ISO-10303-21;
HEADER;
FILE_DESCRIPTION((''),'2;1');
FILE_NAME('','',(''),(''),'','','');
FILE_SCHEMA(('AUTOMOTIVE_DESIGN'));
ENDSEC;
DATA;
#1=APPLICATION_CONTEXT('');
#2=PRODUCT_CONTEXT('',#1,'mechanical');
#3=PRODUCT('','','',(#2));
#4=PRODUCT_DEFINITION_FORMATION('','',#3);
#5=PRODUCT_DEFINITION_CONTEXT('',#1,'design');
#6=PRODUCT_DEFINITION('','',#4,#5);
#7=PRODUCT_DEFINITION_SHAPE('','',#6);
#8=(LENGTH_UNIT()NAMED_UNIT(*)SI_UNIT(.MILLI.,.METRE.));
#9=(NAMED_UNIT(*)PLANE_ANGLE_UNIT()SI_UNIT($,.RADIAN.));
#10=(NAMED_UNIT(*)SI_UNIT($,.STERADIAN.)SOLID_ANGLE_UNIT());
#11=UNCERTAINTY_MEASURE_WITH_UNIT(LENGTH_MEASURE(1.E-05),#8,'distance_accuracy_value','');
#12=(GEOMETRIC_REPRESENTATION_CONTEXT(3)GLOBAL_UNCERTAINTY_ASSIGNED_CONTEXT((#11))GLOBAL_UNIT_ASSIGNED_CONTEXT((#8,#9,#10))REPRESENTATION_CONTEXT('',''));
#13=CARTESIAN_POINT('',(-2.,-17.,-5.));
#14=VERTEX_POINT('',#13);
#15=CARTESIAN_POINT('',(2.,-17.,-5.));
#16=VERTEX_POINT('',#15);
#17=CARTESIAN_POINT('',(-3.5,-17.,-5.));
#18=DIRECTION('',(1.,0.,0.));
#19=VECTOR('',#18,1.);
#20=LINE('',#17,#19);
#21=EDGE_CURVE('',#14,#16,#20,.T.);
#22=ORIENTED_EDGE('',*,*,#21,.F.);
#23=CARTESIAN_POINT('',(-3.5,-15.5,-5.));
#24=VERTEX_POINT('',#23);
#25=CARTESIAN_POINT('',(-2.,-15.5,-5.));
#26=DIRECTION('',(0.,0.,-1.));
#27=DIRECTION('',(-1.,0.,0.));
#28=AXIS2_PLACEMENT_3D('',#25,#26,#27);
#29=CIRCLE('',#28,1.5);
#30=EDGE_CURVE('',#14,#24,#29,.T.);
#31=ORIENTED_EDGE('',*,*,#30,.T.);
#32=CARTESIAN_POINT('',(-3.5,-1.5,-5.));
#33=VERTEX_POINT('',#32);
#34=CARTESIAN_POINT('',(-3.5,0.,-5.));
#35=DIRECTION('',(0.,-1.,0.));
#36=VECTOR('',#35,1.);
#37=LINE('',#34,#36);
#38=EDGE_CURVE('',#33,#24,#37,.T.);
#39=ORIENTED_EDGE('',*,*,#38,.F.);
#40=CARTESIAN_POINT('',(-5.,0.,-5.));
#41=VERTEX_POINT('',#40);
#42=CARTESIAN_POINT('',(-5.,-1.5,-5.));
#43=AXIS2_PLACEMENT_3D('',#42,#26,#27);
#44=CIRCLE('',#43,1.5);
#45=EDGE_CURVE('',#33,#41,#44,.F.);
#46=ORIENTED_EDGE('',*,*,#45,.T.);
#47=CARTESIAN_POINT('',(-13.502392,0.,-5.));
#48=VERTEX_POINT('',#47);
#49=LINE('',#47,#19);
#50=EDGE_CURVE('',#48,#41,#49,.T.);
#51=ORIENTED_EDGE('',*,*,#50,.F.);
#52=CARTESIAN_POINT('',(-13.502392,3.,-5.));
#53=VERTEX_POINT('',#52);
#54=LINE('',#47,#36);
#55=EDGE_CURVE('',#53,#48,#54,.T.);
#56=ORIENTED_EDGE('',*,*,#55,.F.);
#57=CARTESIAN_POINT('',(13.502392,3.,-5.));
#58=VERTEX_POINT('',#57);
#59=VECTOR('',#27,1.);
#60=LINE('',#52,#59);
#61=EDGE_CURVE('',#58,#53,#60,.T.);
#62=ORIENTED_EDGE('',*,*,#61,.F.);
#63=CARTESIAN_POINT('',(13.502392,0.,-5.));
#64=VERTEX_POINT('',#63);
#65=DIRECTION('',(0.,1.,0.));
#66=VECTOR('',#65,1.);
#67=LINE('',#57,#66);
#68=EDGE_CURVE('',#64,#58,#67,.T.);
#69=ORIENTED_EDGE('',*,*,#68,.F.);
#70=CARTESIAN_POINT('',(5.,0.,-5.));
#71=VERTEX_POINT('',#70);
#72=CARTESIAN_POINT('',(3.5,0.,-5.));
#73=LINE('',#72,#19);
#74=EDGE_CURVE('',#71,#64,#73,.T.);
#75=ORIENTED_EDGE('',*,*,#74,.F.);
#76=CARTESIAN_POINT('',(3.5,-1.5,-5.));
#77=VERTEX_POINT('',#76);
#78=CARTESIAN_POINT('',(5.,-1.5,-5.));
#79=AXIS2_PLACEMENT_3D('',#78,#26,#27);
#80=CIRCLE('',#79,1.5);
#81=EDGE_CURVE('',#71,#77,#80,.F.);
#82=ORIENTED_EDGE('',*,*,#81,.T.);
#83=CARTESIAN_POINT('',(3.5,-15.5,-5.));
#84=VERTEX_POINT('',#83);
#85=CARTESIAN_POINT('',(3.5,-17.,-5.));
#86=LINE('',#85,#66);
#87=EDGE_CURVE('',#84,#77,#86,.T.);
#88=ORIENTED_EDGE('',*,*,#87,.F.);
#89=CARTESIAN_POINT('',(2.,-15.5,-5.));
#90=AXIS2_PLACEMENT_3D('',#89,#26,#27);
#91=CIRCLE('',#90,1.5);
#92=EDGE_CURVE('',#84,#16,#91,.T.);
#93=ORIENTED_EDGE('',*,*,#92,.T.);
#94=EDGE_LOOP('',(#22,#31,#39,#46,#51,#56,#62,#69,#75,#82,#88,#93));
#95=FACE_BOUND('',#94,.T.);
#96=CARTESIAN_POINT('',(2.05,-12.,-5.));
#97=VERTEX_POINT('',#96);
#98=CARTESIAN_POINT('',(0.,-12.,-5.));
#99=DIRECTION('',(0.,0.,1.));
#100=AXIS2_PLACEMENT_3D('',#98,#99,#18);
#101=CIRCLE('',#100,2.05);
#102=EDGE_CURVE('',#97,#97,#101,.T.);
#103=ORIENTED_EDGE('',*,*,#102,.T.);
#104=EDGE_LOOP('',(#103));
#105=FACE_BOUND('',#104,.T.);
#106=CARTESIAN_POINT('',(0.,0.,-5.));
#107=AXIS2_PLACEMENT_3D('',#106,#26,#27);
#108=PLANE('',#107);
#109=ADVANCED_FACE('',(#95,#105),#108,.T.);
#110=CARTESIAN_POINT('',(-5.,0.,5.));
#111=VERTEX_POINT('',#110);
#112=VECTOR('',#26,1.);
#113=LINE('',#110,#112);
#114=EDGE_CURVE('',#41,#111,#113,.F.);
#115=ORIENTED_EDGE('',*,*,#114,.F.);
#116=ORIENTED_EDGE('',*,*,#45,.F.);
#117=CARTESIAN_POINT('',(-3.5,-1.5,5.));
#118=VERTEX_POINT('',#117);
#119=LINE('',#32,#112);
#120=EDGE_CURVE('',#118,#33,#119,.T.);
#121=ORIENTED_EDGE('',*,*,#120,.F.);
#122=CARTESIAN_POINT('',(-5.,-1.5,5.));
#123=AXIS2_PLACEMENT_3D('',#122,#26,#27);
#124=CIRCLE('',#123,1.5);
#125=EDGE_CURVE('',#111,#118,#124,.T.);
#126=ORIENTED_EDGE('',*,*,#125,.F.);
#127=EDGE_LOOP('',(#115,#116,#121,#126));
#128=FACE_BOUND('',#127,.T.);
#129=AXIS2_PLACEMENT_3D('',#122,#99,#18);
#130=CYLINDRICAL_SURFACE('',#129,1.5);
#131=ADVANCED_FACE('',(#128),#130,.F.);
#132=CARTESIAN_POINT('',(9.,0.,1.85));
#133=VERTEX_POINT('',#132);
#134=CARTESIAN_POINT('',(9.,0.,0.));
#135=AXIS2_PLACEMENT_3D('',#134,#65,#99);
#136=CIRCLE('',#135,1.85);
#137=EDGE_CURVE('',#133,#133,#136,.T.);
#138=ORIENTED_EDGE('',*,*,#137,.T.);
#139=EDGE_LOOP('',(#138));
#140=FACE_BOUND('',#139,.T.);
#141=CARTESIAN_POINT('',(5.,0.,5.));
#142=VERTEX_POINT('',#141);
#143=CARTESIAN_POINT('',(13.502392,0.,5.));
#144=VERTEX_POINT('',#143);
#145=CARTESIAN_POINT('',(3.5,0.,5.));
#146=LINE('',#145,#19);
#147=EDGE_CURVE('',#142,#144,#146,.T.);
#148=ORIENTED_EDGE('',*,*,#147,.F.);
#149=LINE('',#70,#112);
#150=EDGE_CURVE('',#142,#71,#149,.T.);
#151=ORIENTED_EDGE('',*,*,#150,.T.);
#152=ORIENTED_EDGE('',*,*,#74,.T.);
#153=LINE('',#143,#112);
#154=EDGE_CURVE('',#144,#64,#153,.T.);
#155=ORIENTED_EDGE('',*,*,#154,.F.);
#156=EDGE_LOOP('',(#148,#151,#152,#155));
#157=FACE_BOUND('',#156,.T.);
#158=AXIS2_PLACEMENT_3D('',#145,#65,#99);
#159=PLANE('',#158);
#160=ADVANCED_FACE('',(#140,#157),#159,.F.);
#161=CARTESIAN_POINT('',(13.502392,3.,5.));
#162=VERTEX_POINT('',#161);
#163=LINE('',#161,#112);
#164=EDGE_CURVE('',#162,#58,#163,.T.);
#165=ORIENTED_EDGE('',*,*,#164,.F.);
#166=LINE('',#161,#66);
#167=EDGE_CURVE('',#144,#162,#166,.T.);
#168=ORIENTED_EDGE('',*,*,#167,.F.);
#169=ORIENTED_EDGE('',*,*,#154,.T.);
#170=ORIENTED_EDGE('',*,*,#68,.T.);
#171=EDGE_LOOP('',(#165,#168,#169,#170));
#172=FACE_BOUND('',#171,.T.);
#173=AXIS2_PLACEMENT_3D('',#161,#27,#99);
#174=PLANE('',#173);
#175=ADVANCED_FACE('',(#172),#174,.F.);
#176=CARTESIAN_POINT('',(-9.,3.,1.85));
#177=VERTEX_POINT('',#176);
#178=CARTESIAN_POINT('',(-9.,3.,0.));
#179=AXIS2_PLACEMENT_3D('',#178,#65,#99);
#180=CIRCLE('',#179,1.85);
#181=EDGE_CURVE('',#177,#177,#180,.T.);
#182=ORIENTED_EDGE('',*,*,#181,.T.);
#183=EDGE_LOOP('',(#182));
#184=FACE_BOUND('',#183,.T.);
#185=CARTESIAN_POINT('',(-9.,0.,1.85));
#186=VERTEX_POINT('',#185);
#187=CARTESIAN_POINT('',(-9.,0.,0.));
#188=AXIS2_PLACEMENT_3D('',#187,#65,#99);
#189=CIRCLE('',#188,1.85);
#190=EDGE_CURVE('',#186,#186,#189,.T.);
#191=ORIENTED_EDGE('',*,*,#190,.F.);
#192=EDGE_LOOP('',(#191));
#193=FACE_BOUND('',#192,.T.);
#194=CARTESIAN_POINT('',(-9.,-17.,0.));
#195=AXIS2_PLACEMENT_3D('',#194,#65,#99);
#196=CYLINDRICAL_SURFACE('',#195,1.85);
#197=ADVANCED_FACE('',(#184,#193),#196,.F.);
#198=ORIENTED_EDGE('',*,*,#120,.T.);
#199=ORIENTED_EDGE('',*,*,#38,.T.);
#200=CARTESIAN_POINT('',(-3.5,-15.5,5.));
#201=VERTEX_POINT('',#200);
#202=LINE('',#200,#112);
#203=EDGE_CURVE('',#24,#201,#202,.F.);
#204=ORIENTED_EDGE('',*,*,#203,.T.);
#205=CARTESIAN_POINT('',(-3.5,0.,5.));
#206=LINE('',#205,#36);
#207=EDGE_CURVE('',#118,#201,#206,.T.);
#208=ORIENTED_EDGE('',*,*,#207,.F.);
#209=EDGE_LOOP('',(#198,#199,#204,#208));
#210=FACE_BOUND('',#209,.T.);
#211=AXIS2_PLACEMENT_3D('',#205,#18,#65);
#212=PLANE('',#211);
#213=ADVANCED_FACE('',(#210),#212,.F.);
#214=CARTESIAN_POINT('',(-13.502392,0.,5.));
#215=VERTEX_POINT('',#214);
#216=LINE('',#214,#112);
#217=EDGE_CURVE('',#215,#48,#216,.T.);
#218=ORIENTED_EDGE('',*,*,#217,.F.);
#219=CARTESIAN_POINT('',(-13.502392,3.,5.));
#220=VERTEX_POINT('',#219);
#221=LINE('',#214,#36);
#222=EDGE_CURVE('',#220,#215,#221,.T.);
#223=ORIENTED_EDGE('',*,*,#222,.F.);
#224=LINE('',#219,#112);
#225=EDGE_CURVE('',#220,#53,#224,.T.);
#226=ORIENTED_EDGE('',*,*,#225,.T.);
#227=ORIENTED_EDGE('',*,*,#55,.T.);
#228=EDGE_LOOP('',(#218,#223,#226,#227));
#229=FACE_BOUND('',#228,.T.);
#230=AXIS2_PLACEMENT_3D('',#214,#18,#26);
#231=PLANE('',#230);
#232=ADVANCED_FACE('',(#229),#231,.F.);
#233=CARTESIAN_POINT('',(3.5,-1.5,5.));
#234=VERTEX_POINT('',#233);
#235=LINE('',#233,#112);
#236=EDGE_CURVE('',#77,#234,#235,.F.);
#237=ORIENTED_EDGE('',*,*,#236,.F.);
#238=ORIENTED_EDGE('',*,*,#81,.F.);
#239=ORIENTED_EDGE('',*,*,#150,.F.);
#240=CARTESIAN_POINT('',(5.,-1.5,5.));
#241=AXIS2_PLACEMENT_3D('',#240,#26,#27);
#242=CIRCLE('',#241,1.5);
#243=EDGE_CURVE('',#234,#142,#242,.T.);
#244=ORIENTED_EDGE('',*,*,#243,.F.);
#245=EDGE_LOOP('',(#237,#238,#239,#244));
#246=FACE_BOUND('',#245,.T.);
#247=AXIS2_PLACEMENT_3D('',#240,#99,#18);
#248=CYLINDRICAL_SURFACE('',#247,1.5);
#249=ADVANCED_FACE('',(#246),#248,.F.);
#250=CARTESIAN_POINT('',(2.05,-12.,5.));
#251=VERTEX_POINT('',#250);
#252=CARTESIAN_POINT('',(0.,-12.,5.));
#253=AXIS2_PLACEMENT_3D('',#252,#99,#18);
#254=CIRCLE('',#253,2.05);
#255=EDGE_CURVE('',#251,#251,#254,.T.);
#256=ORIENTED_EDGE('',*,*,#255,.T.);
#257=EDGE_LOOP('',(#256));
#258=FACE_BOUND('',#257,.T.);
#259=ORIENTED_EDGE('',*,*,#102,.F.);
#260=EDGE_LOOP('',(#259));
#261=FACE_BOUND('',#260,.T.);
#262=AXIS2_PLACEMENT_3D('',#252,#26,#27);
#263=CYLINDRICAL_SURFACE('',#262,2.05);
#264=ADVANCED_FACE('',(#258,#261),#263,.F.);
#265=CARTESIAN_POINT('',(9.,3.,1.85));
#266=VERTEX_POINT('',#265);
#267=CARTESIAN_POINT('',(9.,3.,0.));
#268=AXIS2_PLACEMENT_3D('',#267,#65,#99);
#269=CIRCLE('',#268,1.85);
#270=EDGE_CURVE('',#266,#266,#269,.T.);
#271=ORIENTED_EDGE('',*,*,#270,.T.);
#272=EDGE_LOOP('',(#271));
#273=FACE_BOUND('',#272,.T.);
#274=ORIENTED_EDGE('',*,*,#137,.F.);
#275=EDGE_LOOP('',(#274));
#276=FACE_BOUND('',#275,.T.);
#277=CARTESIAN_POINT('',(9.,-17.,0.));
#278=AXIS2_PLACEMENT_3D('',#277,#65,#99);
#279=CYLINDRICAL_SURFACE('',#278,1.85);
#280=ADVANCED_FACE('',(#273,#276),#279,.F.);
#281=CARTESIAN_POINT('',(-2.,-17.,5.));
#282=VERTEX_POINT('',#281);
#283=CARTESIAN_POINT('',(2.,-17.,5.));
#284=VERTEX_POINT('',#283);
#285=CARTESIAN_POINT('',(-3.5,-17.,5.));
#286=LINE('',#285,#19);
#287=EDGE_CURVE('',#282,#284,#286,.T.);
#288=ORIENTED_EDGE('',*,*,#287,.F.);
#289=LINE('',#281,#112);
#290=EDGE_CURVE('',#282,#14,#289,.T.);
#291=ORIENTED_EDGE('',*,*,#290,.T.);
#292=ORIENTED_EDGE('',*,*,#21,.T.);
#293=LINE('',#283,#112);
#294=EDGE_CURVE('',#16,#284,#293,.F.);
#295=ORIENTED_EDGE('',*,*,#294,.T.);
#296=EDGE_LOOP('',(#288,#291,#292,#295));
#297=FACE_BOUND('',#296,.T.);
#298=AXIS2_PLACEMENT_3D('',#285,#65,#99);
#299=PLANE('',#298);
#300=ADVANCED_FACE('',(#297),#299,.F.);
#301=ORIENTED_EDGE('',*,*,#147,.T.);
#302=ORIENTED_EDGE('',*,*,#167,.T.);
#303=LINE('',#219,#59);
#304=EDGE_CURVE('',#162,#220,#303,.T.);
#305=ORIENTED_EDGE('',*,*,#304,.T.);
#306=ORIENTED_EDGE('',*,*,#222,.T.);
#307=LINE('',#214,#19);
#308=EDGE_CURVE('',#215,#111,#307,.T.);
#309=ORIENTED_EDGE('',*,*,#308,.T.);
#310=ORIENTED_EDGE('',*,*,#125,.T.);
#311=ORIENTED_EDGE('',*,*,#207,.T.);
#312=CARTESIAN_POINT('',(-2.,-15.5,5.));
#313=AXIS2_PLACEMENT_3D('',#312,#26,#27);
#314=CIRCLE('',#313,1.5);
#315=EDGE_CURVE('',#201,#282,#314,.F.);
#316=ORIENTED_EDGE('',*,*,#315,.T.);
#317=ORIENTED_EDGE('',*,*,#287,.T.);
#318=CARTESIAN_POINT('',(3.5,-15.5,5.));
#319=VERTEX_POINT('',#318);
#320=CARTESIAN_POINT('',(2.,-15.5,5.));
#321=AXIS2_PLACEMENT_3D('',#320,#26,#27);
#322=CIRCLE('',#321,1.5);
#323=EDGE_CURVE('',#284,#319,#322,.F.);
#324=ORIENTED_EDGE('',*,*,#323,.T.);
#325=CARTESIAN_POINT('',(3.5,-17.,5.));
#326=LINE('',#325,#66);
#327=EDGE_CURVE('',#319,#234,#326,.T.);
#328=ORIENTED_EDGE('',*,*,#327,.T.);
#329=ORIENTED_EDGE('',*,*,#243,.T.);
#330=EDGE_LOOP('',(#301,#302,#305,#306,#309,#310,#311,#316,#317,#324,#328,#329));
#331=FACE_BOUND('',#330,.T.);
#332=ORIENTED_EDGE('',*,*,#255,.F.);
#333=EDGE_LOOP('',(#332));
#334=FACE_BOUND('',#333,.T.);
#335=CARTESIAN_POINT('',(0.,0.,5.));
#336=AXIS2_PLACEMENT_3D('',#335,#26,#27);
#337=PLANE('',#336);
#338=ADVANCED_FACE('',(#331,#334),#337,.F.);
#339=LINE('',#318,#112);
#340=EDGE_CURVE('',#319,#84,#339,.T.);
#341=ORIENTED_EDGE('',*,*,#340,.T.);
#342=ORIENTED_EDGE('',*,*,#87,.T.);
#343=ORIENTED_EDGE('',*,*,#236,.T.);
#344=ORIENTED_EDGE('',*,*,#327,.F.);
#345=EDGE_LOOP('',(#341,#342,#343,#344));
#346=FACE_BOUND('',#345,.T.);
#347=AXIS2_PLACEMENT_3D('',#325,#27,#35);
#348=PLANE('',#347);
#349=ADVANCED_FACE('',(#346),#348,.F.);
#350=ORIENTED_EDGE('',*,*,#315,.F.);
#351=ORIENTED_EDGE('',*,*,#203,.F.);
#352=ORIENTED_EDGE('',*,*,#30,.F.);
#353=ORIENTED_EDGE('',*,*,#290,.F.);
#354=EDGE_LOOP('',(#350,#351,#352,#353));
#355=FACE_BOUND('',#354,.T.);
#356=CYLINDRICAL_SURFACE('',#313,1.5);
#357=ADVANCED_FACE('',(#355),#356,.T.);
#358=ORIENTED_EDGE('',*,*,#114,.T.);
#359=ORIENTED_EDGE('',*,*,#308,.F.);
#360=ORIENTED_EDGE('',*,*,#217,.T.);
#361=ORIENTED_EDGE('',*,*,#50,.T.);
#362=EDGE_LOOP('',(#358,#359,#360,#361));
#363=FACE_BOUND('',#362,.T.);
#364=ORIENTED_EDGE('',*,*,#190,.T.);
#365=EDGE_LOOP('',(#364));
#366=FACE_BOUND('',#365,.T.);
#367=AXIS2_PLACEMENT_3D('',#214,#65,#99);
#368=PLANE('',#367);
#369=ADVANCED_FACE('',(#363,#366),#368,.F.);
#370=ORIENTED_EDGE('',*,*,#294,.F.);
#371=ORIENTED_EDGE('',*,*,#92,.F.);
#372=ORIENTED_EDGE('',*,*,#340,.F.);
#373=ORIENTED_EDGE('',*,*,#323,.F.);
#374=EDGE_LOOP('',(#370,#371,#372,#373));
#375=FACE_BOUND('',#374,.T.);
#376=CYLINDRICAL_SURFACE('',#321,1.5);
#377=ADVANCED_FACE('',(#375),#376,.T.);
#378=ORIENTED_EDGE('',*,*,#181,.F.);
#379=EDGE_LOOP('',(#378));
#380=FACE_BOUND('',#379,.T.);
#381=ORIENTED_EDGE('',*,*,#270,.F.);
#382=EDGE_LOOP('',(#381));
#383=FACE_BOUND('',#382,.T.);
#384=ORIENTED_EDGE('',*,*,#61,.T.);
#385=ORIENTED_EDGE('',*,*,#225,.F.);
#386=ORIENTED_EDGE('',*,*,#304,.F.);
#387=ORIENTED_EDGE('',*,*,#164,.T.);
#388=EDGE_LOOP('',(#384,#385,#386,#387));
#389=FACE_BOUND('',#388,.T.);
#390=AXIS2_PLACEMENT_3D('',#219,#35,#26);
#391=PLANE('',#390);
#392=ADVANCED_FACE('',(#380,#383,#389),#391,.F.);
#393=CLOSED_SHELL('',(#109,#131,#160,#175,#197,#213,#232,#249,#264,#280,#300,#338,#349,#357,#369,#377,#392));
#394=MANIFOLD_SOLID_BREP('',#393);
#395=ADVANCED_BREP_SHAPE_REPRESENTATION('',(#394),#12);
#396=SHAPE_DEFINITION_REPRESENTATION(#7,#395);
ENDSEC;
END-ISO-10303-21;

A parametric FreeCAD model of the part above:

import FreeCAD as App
import Part
import Sketcher
from FreeCAD import Vector


def edges_at(feature, points):
    """Names of the edges that pass closest to the given points."""
    edges = feature.Shape.Edges
    near = lambda p: min(range(len(edges)), key=lambda i: edges[i].distToShape(Part.Vertex(*p))[0])
    return sorted({f"Edge{near(p) + 1}" for p in points})

doc = App.newDocument("Part")
body = doc.addObject("PartDesign::Body", "Body")

# Sketch on XY plane
sketch1 = body.newObject("Sketcher::SketchObject", "Sketch")
sketch1.AttachmentSupport = (doc.getObject("XY_Plane"), [""])
sketch1.MapMode = "FlatFace"
sketch1.addGeometry([
    Part.LineSegment(Vector(-13.5, 0, 0), Vector(-3.5, 0, 0)),  # 0
    Part.LineSegment(Vector(-3.5, 0, 0), Vector(-3.5, -17, 0)),  # 1
    Part.LineSegment(Vector(-3.5, -17, 0), Vector(3.5, -17, 0)),  # 2
    Part.LineSegment(Vector(3.5, -17, 0), Vector(3.5, 0, 0)),  # 3
    Part.LineSegment(Vector(3.5, 0, 0), Vector(13.5, 0, 0)),  # 4
    Part.LineSegment(Vector(13.5, 0, 0), Vector(13.5, 3, 0)),  # 5
    Part.LineSegment(Vector(13.5, 3, 0), Vector(-13.5, 3, 0)),  # 6
    Part.LineSegment(Vector(-13.5, 3, 0), Vector(-13.5, 0, 0)),  # 7
    Part.Circle(Vector(0, -12, 0), Vector(0, 0, 1), 2),  # 8
], False)
sketch1.addConstraint([
    Sketcher.Constraint("Coincident", 0, 2, 1, 1),
    Sketcher.Constraint("Coincident", 1, 2, 2, 1),
    Sketcher.Constraint("Coincident", 2, 2, 3, 1),
    Sketcher.Constraint("Coincident", 3, 2, 4, 1),
    Sketcher.Constraint("Coincident", 4, 2, 5, 1),
    Sketcher.Constraint("Coincident", 5, 2, 6, 1),
    Sketcher.Constraint("Coincident", 6, 2, 7, 1),
    Sketcher.Constraint("Coincident", 7, 2, 0, 1),
    Sketcher.Constraint("Horizontal", 0),
    Sketcher.Constraint("Vertical", 1),
    Sketcher.Constraint("Horizontal", 2),
    Sketcher.Constraint("Vertical", 3),
    Sketcher.Constraint("Horizontal", 4),
    Sketcher.Constraint("Vertical", 5),
    Sketcher.Constraint("Horizontal", 6),
    Sketcher.Constraint("Vertical", 7),
    Sketcher.Constraint("Symmetric", 0, 2, 3, 2, -1, 1),
    Sketcher.Constraint("Symmetric", 4, 2, 7, 2, -2),
    Sketcher.Constraint("PointOnObject", 8, 3, -2),
    Sketcher.Constraint("Diameter", 8, 4.1),
    Sketcher.Constraint("DistanceX", 2, 1, 2, 2, 7.0),
    Sketcher.Constraint("DistanceY", 1, 2, 1, 1, 17.0),
    Sketcher.Constraint("DistanceY", 5, 1, 5, 2, 3.0),
    Sketcher.Constraint("DistanceY", 8, 3, -1, 1, 12.0),
    Sketcher.Constraint("DistanceX", 0, 1, 0, 2, 10.002392),
])
pad1 = body.newObject("PartDesign::Pad", "Pad")
pad1.Profile = sketch1
pad1.Length = 10
pad1.Midplane = True
doc.recompute()

fillet = body.newObject("PartDesign::Fillet", "Fillet")
fillet.Base = (pad1, edges_at(pad1, [
    (3.5, 0, 0),
    (3.5, -17, 0),
    (-3.5, -17, 0),
    (-3.5, 0, 0),
]))
fillet.Radius = 1.5

# Sketch on XZ plane
sketch2 = body.newObject("Sketcher::SketchObject", "Sketch001")
sketch2.AttachmentSupport = (doc.getObject("XZ_Plane"), [""])
sketch2.MapMode = "FlatFace"
sketch2.AttachmentOffset = App.Placement(Vector(0, 0, -3), App.Rotation())
sketch2.addGeometry([
    Part.Circle(Vector(-9, 0, 0), Vector(0, 0, 1), 1.9),
    Part.Circle(Vector(9, 0, 0), Vector(0, 0, 1), 1.9),
], False)
sketch2.addConstraint([
    Sketcher.Constraint("Equal", 0, 1),
    Sketcher.Constraint("Symmetric", 0, 3, 1, 3, -1, 1),
    Sketcher.Constraint("PointOnObject", 0, 3, -1),
    Sketcher.Constraint("Diameter", 0, 3.7),
    Sketcher.Constraint("DistanceX", 0, 3, -1, 1, 9.0),
])
pocket1 = body.newObject("PartDesign::Pocket", "Pocket")
pocket1.Profile = sketch2
pocket1.Type = "ThroughAll"
pocket1.Reversed = True

doc.recompute()
